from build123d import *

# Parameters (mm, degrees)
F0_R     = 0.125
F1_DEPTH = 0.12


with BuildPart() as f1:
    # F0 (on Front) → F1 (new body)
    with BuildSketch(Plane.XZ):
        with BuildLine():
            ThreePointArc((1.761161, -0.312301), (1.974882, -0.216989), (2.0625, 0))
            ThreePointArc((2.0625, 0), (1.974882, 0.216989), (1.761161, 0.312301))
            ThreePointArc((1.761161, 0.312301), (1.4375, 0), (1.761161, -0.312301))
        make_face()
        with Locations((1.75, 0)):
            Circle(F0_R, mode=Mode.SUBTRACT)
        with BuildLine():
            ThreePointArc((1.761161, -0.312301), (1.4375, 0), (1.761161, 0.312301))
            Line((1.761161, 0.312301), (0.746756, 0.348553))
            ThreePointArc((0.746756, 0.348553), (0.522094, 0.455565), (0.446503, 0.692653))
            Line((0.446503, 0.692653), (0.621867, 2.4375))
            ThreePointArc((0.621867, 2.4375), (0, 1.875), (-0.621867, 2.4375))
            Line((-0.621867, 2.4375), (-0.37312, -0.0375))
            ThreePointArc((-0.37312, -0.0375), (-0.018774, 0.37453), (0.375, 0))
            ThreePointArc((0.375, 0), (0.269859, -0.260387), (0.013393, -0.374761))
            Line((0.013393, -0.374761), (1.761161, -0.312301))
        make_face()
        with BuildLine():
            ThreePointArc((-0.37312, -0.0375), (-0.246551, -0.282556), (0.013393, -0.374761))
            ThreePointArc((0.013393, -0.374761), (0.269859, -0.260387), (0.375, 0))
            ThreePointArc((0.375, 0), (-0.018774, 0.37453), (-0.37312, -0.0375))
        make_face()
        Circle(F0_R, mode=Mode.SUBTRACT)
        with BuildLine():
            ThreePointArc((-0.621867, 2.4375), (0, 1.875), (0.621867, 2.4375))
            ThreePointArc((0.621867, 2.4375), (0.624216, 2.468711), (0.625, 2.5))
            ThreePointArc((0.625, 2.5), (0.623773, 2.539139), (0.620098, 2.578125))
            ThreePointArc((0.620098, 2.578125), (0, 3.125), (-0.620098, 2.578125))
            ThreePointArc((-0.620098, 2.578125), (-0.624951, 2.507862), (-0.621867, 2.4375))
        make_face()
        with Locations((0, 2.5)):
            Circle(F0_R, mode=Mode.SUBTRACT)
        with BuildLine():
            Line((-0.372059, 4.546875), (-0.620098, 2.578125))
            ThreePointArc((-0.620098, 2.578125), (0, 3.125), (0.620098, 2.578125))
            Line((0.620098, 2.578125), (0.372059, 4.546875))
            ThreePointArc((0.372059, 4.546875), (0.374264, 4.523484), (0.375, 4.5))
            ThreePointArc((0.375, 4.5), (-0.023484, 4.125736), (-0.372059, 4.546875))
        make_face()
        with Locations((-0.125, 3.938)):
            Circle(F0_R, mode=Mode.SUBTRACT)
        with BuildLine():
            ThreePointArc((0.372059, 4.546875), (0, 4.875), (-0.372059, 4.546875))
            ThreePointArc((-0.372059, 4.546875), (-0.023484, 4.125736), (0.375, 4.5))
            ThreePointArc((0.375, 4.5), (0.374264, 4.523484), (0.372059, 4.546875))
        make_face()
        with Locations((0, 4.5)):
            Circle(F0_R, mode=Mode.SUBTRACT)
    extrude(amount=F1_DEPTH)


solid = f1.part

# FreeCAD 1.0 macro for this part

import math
import FreeCAD as App
import Part
import Sketcher
from FreeCAD import Vector
Q = App.Units.Quantity

doc = App.newDocument("Part")
body = doc.addObject("PartDesign::Body", "Body")

# Sketch on XZ plane
sketch1 = body.newObject("Sketcher::SketchObject", "Sketch")
sketch1.AttachmentSupport = (doc.getObject("XZ_Plane"), [""])
sketch1.MapMode = "FlatFace"
sketch1.addGeometry([
    Part.ArcOfCircle(Part.Circle(Vector(1.75, 0, 0), Vector(0, 0, 1), 0.31), math.radians(-88), math.radians(0)),  # 0
    Part.ArcOfCircle(Part.Circle(Vector(1.75, 0, 0), Vector(0, 0, 1), 0.31), math.radians(0), math.radians(88)),  # 1
    Part.LineSegment(Vector(1.76, 0.31, 0), Vector(0.75, 0.35, 0)),  # 2
    Part.ArcOfCircle(Part.Circle(Vector(0.76, 0.66, 0), Vector(0, 0, 1), 0.31), math.radians(174), math.radians(268)),  # 3
    Part.LineSegment(Vector(0.45, 0.69, 0), Vector(0.62, 2.44, 0)),  # 4
    Part.ArcOfCircle(Part.Circle(Vector(0, 2.5, 0), Vector(0, 0, 1), 0.63), math.radians(-5.74), math.radians(0)),  # 5
    Part.ArcOfCircle(Part.Circle(Vector(0, 2.5, 0), Vector(0, 0, 1), 0.63), math.radians(0), math.radians(7.18)),  # 6
    Part.LineSegment(Vector(0.62, 2.58, 0), Vector(0.37, 4.55, 0)),  # 7
    Part.ArcOfCircle(Part.Circle(Vector(0, 4.5, 0), Vector(0, 0, 1), 0.38), math.radians(7), math.radians(173)),  # 8
    Part.LineSegment(Vector(-0.37, 4.55, 0), Vector(-0.62, 2.58, 0)),  # 9
    Part.ArcOfCircle(Part.Circle(Vector(0, 2.5, 0), Vector(0, 0, 1), 0.62), math.radians(172.82), math.radians(185.74)),  # 10
    Part.LineSegment(Vector(-0.62, 2.44, 0), Vector(-0.37, -0.04, 0)),  # 11
    Part.ArcOfCircle(Part.Circle(Vector(0, 0, 0), Vector(0, 0, 1), 0.37), math.radians(-174), math.radians(-88)),  # 12
    Part.LineSegment(Vector(0.01, -0.37, 0), Vector(1.76, -0.31, 0)),  # 13
    Part.Circle(Vector(0, 0, 0), Vector(0, 0, 1), 0.12),  # 14
    Part.Circle(Vector(1.75, 0, 0), Vector(0, 0, 1), 0.12),  # 15
    Part.Circle(Vector(0, 2.5, 0), Vector(0, 0, 1), 0.12),  # 16
    Part.Circle(Vector(-0.12, 3.94, 0), Vector(0, 0, 1), 0.12),  # 17
    Part.Circle(Vector(0, 4.5, 0), Vector(0, 0, 1), 0.12),  # 18
], False)
sketch1.addConstraint([
    Sketcher.Constraint("Coincident", 0, 2, 1, 1),
    Sketcher.Constraint("Coincident", 1, 2, 2, 1),
    Sketcher.Constraint("Coincident", 2, 2, 3, 2),
    Sketcher.Constraint("Coincident", 3, 1, 4, 1),
    Sketcher.Constraint("Coincident", 4, 2, 5, 1),
    Sketcher.Constraint("Coincident", 5, 2, 6, 1),
    Sketcher.Constraint("Coincident", 6, 2, 7, 1),
    Sketcher.Constraint("Tangent", 7, 2, 8, 1),
    Sketcher.Constraint("Tangent", 8, 2, 9, 1),
    Sketcher.Constraint("Coincident", 9, 2, 10, 1),
    Sketcher.Constraint("Coincident", 10, 2, 11, 1),
    Sketcher.Constraint("Coincident", 11, 2, 12, 1),
    Sketcher.Constraint("Coincident", 12, 2, 13, 1),
    Sketcher.Constraint("Coincident", 13, 2, 0, 1),
    Sketcher.Constraint("Coincident", 12, 3, -1, 1),
    Sketcher.Constraint("Coincident", 14, 3, -1, 1),
    Sketcher.Constraint("Coincident", 1, 3, 0, 3),
    Sketcher.Constraint("Coincident", 15, 3, 0, 3),
    Sketcher.Constraint("Coincident", 18, 3, 8, 3),
    Sketcher.Constraint("Equal", 8, 12),
    Sketcher.Constraint("Equal", 14, 15),
    Sketcher.Constraint("Equal", 15, 16),
    Sketcher.Constraint("Equal", 16, 17),
    Sketcher.Constraint("Equal", 17, 18),
    Sketcher.Constraint("Symmetric", 7, 2, 8, 2, -2),
    Sketcher.Constraint("Symmetric", 4, 2, 10, 2, -2),
    Sketcher.Constraint("Symmetric", 1, 2, 13, 2, -1),
    Sketcher.Constraint("PointOnObject", 16, 3, -2),
    Sketcher.Constraint("PointOnObject", 0, 2, -1),
    Sketcher.Constraint("Horizontal", 10, 3, 16, 3),
    Sketcher.Constraint("Horizontal", 16, 3, 5, 2),
    Sketcher.Constraint("Horizontal", 6, 2, 9, 2),
    Sketcher.Constraint("Diameter", 14, Q("0.25 mm")),
    Sketcher.Constraint("Radius", 3, Q("0.312999 mm")),
    Sketcher.Constraint("Radius", 8, Q("0.375 mm")),
    Sketcher.Constraint("DistanceY", 16, 3, 8, 3, Q("2 mm")),
    Sketcher.Constraint("DistanceY", -1, 1, 8, 3, Q("4.5 mm")),
    Sketcher.Constraint("Radius", 0, Q("0.312501 mm")),
    Sketcher.Constraint("DistanceX", -1, 1, 0, 3, Q("1.749999 mm")),
    Sketcher.Constraint("Radius", 10, Q("0.624921 mm")),
    Sketcher.Constraint("DistanceX", 17, 3, -1, 1, Q("0.125 mm")),
    Sketcher.Constraint("DistanceY", -1, 1, 17, 3, Q("3.938 mm")),
    Sketcher.Constraint("DistanceX", -1, 1, 5, 2, Q("0.625 mm")),
    Sketcher.Constraint("Radius", 5, Q("0.625186 mm")),
    Sketcher.Constraint("Radius", 6, Q("0.625165 mm")),
    Sketcher.Constraint("DistanceY", -1, 1, 1, 2, Q("0.312301 mm")),
    Sketcher.Constraint("DistanceY", -1, 1, 4, 2, Q("2.4375 mm")),
    Sketcher.Constraint("DistanceX", 9, 2, -1, 1, Q("0.620098 mm")),
    Sketcher.Constraint("DistanceY", 11, 2, -1, 1, Q("0.0375 mm")),
    Sketcher.Constraint("DistanceY", 2, 2, 3, 3, Q("0.312799 mm")),
    Sketcher.Constraint("DistanceY", 3, 3, 3, 1, Q("0.031301 mm")),
    Sketcher.Constraint("DistanceX", 10, 2, 6, 3, Q("0.621702 mm")),
    Sketcher.Constraint("DistanceY", 12, 2, -1, 1, Q("0.374761 mm")),
    Sketcher.Constraint("DistanceY", 0, 3, 3, 3, Q("0.661351 mm")),
    Sketcher.Constraint("DistanceX", 5, 3, 3, 3, Q("0.758118 mm")),
])
pad1 = body.newObject("PartDesign::Pad", "Pad")
pad1.Profile = sketch1
pad1.Length = 0.12

doc.recompute()
